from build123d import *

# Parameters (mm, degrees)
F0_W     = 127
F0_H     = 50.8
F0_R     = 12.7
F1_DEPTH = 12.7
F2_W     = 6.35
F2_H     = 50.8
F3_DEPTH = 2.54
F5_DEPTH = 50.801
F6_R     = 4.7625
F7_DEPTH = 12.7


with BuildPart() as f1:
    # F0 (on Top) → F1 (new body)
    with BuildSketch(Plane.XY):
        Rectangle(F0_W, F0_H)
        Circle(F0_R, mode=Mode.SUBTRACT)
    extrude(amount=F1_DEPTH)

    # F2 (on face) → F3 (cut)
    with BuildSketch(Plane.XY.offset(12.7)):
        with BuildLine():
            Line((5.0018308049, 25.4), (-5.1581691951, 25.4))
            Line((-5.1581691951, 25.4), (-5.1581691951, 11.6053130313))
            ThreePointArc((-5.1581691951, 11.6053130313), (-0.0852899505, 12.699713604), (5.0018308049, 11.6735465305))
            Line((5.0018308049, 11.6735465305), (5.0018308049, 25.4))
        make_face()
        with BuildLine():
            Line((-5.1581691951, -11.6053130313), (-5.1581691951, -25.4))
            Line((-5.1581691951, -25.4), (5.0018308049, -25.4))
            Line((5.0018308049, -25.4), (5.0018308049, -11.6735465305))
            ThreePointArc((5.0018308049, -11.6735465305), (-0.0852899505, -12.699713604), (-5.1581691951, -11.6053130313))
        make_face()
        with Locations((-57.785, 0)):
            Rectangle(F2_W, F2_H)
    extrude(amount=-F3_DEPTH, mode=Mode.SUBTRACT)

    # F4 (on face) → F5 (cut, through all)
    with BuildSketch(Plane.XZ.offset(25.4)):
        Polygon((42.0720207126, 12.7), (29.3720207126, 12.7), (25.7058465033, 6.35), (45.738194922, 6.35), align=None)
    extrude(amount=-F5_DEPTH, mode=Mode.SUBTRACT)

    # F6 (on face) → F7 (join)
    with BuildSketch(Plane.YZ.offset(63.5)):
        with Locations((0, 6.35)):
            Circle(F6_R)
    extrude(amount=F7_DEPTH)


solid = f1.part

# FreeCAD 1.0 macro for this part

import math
import FreeCAD as App
import Part
import Sketcher
from FreeCAD import Vector
Q = App.Units.Quantity

doc = App.newDocument("Part")
body = doc.addObject("PartDesign::Body", "Body")

# Sketch on XY plane
sketch1 = body.newObject("Sketcher::SketchObject", "Sketch")
sketch1.AttachmentSupport = (doc.getObject("XY_Plane"), [""])
sketch1.MapMode = "FlatFace"
sketch1.addGeometry(Part.LineSegment(Vector(-64, 25, 0), Vector(-64, -25, 0)), False)
sketch1.addGeometry(Part.LineSegment(Vector(-64, -25, 0), Vector(64, -25, 0)), False)
sketch1.addGeometry(Part.LineSegment(Vector(64, -25, 0), Vector(64, 25, 0)), False)
sketch1.addGeometry(Part.LineSegment(Vector(64, 25, 0), Vector(-64, 25, 0)), False)
sketch1.addGeometry(Part.Circle(Vector(0, 0, 0), Vector(0, 0, 1), 13), False)
sketch1.addConstraint(Sketcher.Constraint("Coincident", 0, 2, 1, 1))
sketch1.addConstraint(Sketcher.Constraint("Coincident", 1, 2, 2, 1))
sketch1.addConstraint(Sketcher.Constraint("Coincident", 2, 2, 3, 1))
sketch1.addConstraint(Sketcher.Constraint("Coincident", 3, 2, 0, 1))
sketch1.addConstraint(Sketcher.Constraint("Vertical", 0))
sketch1.addConstraint(Sketcher.Constraint("Horizontal", 1))
sketch1.addConstraint(Sketcher.Constraint("Vertical", 2))
sketch1.addConstraint(Sketcher.Constraint("Horizontal", 3))
sketch1.addConstraint(Sketcher.Constraint("Coincident", 4, 3, -1, 1))
sketch1.addConstraint(Sketcher.Constraint("Symmetric", 0, 2, 2, 2, -1, 1))
sketch1.addConstraint(Sketcher.Constraint("Diameter", 4, Q("1 in")))
sketch1.addConstraint(Sketcher.Constraint("DistanceX", 1, 1, 1, 2, Q("5 in")))
sketch1.addConstraint(Sketcher.Constraint("DistanceY", 0, 2, 0, 1, Q("2 in")))
pad1 = body.newObject("PartDesign::Pad", "Pad")
pad1.Profile = sketch1
pad1.Length = Q("0.5 in")

# Sketch on XY plane
sketch2 = body.newObject("Sketcher::SketchObject", "Sketch001")
sketch2.AttachmentSupport = (doc.getObject("XY_Plane"), [""])
sketch2.MapMode = "FlatFace"
sketch2.AttachmentOffset = App.Placement(Vector(0, 0, 0.5 * 25.4), App.Rotation())
sketch2.addGeometry(Part.LineSegment(Vector(5, 25, 0), Vector(-5, 25, 0)), False)
sketch2.addGeometry(Part.LineSegment(Vector(-5, 25, 0), Vector(-5, 12, 0)), False)
sketch2.addGeometry(Part.ArcOfCircle(Part.Circle(Vector(0, 0, 0), Vector(0, 0, 1), 13), math.radians(67), math.radians(114)), False)
sketch2.addGeometry(Part.LineSegment(Vector(5, 12, 0), Vector(5, 25, 0)), False)
sketch2.addGeometry(Part.LineSegment(Vector(-5, -12, 0), Vector(-5, -25, 0)), False)
sketch2.addGeometry(Part.LineSegment(Vector(-5, -25, 0), Vector(5, -25, 0)), False)
sketch2.addGeometry(Part.LineSegment(Vector(5, -25, 0), Vector(5, -12, 0)), False)
sketch2.addGeometry(Part.ArcOfCircle(Part.Circle(Vector(0, 0, 0), Vector(0, 0, 1), 13), math.radians(-114), math.radians(-67)), False)
sketch2.addGeometry(Part.LineSegment(Vector(-61, 25, 0), Vector(-61, -25, 0)), False)
sketch2.addGeometry(Part.LineSegment(Vector(-61, -25, 0), Vector(-55, -25, 0)), False)
sketch2.addGeometry(Part.LineSegment(Vector(-55, -25, 0), Vector(-55, 25, 0)), False)
sketch2.addGeometry(Part.LineSegment(Vector(-55, 25, 0), Vector(-61, 25, 0)), False)
sketch2.addConstraint(Sketcher.Constraint("Coincident", 0, 2, 1, 1))
sketch2.addConstraint(Sketcher.Constraint("Coincident", 1, 2, 2, 2))
sketch2.addConstraint(Sketcher.Constraint("Coincident", 2, 1, 3, 1))
sketch2.addConstraint(Sketcher.Constraint("Coincident", 3, 2, 0, 1))
sketch2.addConstraint(Sketcher.Constraint("Coincident", 4, 2, 5, 1))
sketch2.addConstraint(Sketcher.Constraint("Coincident", 5, 2, 6, 1))
sketch2.addConstraint(Sketcher.Constraint("Coincident", 6, 2, 7, 2))
sketch2.addConstraint(Sketcher.Constraint("Coincident", 7, 1, 4, 1))
sketch2.addConstraint(Sketcher.Constraint("Coincident", 8, 2, 9, 1))
sketch2.addConstraint(Sketcher.Constraint("Coincident", 9, 2, 10, 1))
sketch2.addConstraint(Sketcher.Constraint("Coincident", 10, 2, 11, 1))
sketch2.addConstraint(Sketcher.Constraint("Coincident", 11, 2, 8, 1))
sketch2.addConstraint(Sketcher.Constraint("Horizontal", 0))
sketch2.addConstraint(Sketcher.Constraint("Vertical", 1))
sketch2.addConstraint(Sketcher.Constraint("Vertical", 3))
sketch2.addConstraint(Sketcher.Constraint("Vertical", 4))
sketch2.addConstraint(Sketcher.Constraint("Horizontal", 5))
sketch2.addConstraint(Sketcher.Constraint("Vertical", 6))
sketch2.addConstraint(Sketcher.Constraint("Vertical", 8))
sketch2.addConstraint(Sketcher.Constraint("Horizontal", 9))
sketch2.addConstraint(Sketcher.Constraint("Vertical", 10))
sketch2.addConstraint(Sketcher.Constraint("Horizontal", 11))
sketch2.addConstraint(Sketcher.Constraint("Coincident", 2, 3, -1, 1))
sketch2.addConstraint(Sketcher.Constraint("Coincident", 7, 3, -1, 1))
sketch2.addConstraint(Sketcher.Constraint("Equal", 2, 7))
sketch2.addConstraint(Sketcher.Constraint("Symmetric", 0, 2, 4, 2, -1))
sketch2.addConstraint(Sketcher.Constraint("Horizontal", 5, 2, 8, 2))
sketch2.addConstraint(Sketcher.Constraint("Horizontal", 3, 2, 10, 2))
sketch2.addConstraint(Sketcher.Constraint("Vertical", 3, 2, 5, 2))
sketch2.addConstraint(Sketcher.Constraint("Radius", 2, Q("0.5 in")))
sketch2.addConstraint(Sketcher.Constraint("DistanceY", 8, 2, 8, 1, Q("2 in")))
sketch2.addConstraint(Sketcher.Constraint("DistanceX", 0, 2, 0, 1, Q("0.4 in")))
sketch2.addConstraint(Sketcher.Constraint("DistanceX", 9, 1, 9, 2, Q("0.25 in")))
sketch2.addConstraint(Sketcher.Constraint("DistanceX", 8, 2, -1, 1, Q("2.4 in")))
sketch2.addConstraint(Sketcher.Constraint("DistanceY", 1, 2, 1, 1, Q("13.794687 mm")))
pocket1 = body.newObject("PartDesign::Pocket", "Pocket")
pocket1.Profile = sketch2
pocket1.Length = Q("0.1 in")

# Sketch on XZ plane
sketch3 = body.newObject("Sketcher::SketchObject", "Sketch002")
sketch3.AttachmentSupport = (doc.getObject("XZ_Plane"), [""])
sketch3.MapMode = "FlatFace"
sketch3.AttachmentOffset = App.Placement(Vector(0, 0, 1 * 25.4), App.Rotation())
sketch3.addGeometry(Part.LineSegment(Vector(42, 13, 0), Vector(29, 13, 0)), False)
sketch3.addGeometry(Part.LineSegment(Vector(29, 13, 0), Vector(26, 6, 0)), False)
sketch3.addGeometry(Part.LineSegment(Vector(26, 6, 0), Vector(46, 6, 0)), False)
sketch3.addGeometry(Part.LineSegment(Vector(46, 6, 0), Vector(42, 13, 0)), False)
sketch3.addConstraint(Sketcher.Constraint("Coincident", 0, 2, 1, 1))
sketch3.addConstraint(Sketcher.Constraint("Coincident", 1, 2, 2, 1))
sketch3.addConstraint(Sketcher.Constraint("Coincident", 2, 2, 3, 1))
sketch3.addConstraint(Sketcher.Constraint("Coincident", 3, 2, 0, 1))
sketch3.addConstraint(Sketcher.Constraint("Horizontal", 0))
sketch3.addConstraint(Sketcher.Constraint("Horizontal", 2))
sketch3.addConstraint(Sketcher.Constraint("Equal", 1, 3))
sketch3.addConstraint(Sketcher.Constraint("DistanceX", 0, 2, 0, 1, Q("0.5 in")))
sketch3.addConstraint(Sketcher.Constraint("Angle", 1, Q("-120 deg")))
sketch3.addConstraint(Sketcher.Constraint("DistanceY", -1, 1, 0, 2, Q("0.5 in")))
sketch3.addConstraint(Sketcher.Constraint("DistanceY", -1, 1, 1, 2, Q("0.25 in")))
sketch3.addConstraint(Sketcher.Constraint("DistanceX", -1, 1, 0, 2, Q("29.372021 mm")))
pocket2 = body.newObject("PartDesign::Pocket", "Pocket001")
pocket2.Profile = sketch3
pocket2.Type = "ThroughAll"

# Sketch on YZ plane
sketch4 = body.newObject("Sketcher::SketchObject", "Sketch003")
sketch4.AttachmentSupport = (doc.getObject("YZ_Plane"), [""])
sketch4.MapMode = "FlatFace"
sketch4.AttachmentOffset = App.Placement(Vector(0, 0, 2.5 * 25.4), App.Rotation())
sketch4.addGeometry(Part.Circle(Vector(0, 6.3, 0), Vector(0, 0, 1), 4.8), False)
sketch4.addConstraint(Sketcher.Constraint("PointOnObject", 0, 3, -2))
sketch4.addConstraint(Sketcher.Constraint("Diameter", 0, Q("0.375 in")))
sketch4.addConstraint(Sketcher.Constraint("DistanceY", -1, 1, 0, 3, Q("0.25 in")))
pad2 = body.newObject("PartDesign::Pad", "Pad001")
pad2.Profile = sketch4
pad2.Length = Q("0.5 in")

doc.recompute()
